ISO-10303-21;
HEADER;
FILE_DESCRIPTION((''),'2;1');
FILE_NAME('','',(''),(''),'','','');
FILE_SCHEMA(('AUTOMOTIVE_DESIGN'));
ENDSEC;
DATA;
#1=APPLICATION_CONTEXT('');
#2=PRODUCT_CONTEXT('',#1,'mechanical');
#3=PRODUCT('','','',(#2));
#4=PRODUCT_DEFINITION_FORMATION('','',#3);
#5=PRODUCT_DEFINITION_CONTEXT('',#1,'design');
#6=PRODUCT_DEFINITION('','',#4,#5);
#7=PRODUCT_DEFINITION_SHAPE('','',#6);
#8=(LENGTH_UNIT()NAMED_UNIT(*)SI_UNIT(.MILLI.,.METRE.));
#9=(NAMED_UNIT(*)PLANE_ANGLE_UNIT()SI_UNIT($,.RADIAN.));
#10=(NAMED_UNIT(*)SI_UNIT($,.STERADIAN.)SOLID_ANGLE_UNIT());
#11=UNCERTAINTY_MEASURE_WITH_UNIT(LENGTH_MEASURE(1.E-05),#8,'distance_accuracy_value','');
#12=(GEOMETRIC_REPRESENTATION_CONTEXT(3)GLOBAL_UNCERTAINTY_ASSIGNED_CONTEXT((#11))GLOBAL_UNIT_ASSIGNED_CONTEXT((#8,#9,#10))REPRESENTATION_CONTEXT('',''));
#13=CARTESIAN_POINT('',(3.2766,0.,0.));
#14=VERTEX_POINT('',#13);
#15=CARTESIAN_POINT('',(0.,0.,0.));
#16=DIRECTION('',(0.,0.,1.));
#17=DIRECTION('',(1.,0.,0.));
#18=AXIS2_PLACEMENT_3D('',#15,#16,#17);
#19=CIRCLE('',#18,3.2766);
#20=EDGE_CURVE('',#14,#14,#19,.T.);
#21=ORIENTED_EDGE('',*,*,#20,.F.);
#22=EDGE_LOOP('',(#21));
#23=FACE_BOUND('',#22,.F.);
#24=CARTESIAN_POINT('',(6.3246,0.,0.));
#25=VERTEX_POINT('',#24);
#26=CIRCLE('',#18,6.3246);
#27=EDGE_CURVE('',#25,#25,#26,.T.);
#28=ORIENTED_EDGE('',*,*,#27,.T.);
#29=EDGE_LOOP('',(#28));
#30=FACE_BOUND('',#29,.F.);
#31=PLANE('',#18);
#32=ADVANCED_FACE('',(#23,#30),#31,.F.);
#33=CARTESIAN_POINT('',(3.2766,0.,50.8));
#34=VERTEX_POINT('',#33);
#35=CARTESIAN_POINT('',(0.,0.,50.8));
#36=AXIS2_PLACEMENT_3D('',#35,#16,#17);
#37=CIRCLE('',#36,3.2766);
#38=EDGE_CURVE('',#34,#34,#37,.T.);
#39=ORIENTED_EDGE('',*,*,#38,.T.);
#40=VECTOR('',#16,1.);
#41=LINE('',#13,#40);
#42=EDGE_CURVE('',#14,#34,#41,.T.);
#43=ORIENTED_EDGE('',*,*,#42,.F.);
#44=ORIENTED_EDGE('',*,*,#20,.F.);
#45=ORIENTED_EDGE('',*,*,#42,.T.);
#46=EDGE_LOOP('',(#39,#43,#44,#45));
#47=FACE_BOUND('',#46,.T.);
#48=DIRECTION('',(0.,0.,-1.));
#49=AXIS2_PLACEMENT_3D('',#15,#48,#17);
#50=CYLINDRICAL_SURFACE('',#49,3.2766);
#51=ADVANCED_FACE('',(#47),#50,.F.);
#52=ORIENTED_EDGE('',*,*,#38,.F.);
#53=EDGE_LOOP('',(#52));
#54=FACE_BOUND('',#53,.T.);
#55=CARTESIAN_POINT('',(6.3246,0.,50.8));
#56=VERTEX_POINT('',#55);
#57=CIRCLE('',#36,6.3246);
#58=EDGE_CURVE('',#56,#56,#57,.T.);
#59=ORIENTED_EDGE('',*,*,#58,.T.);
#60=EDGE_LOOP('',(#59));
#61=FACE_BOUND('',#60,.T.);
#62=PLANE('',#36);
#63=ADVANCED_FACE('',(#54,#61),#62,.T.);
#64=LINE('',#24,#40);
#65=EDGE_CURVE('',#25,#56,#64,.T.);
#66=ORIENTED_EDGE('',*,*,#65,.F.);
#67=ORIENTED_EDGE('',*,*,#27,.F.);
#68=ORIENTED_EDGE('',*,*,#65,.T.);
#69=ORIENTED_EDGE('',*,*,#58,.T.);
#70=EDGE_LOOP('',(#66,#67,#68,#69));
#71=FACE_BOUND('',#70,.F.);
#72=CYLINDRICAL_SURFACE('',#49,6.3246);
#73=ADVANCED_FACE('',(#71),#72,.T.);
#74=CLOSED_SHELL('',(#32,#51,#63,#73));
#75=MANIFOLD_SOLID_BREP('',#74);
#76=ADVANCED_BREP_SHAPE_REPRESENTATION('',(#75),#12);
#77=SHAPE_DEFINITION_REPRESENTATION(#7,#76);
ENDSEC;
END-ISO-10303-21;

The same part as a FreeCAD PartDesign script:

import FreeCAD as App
import Part
import Sketcher
from FreeCAD import Vector
Q = App.Units.Quantity

doc = App.newDocument("Part")
params = doc.addObject("Spreadsheet::Sheet", "Params")
for row, (alias, value) in enumerate([
    ("sketch1_diameter", "0.498 in"),
    ("sketch1_diameter2", "0.258 in"),
    ("pad1_length", "2 in"),
], start=1):
    params.set(f"A{row}", alias)
    params.set(f"B{row}", "=" + value)
    params.setAlias(f"B{row}", alias)

body = doc.addObject("PartDesign::Body", "Body")

# Sketch on XY plane
sketch1 = body.newObject("Sketcher::SketchObject", "Sketch")
sketch1.AttachmentSupport = (doc.getObject("XY_Plane"), [""])
sketch1.MapMode = "FlatFace"
sketch1.addGeometry([
    Part.Circle(Vector(0, 0, 0), Vector(0, 0, 1), 6.3),
    Part.Circle(Vector(0, 0, 0), Vector(0, 0, 1), 3.3),
], False)
sketch1.addConstraint([
    Sketcher.Constraint("Coincident", 0, 3, -1, 1),
    Sketcher.Constraint("Coincident", 1, 3, -1, 1),
    Sketcher.Constraint("Diameter", 0, Q("0.498 in")),
    Sketcher.Constraint("Diameter", 1, Q("0.258 in")),
])
sketch1.setExpression("Constraints[2]", "Params.sketch1_diameter")
sketch1.setExpression("Constraints[3]", "Params.sketch1_diameter2")
pad1 = body.newObject("PartDesign::Pad", "Pad")
pad1.Profile = sketch1
pad1.setExpression("Length", "Params.pad1_length")

doc.recompute()
